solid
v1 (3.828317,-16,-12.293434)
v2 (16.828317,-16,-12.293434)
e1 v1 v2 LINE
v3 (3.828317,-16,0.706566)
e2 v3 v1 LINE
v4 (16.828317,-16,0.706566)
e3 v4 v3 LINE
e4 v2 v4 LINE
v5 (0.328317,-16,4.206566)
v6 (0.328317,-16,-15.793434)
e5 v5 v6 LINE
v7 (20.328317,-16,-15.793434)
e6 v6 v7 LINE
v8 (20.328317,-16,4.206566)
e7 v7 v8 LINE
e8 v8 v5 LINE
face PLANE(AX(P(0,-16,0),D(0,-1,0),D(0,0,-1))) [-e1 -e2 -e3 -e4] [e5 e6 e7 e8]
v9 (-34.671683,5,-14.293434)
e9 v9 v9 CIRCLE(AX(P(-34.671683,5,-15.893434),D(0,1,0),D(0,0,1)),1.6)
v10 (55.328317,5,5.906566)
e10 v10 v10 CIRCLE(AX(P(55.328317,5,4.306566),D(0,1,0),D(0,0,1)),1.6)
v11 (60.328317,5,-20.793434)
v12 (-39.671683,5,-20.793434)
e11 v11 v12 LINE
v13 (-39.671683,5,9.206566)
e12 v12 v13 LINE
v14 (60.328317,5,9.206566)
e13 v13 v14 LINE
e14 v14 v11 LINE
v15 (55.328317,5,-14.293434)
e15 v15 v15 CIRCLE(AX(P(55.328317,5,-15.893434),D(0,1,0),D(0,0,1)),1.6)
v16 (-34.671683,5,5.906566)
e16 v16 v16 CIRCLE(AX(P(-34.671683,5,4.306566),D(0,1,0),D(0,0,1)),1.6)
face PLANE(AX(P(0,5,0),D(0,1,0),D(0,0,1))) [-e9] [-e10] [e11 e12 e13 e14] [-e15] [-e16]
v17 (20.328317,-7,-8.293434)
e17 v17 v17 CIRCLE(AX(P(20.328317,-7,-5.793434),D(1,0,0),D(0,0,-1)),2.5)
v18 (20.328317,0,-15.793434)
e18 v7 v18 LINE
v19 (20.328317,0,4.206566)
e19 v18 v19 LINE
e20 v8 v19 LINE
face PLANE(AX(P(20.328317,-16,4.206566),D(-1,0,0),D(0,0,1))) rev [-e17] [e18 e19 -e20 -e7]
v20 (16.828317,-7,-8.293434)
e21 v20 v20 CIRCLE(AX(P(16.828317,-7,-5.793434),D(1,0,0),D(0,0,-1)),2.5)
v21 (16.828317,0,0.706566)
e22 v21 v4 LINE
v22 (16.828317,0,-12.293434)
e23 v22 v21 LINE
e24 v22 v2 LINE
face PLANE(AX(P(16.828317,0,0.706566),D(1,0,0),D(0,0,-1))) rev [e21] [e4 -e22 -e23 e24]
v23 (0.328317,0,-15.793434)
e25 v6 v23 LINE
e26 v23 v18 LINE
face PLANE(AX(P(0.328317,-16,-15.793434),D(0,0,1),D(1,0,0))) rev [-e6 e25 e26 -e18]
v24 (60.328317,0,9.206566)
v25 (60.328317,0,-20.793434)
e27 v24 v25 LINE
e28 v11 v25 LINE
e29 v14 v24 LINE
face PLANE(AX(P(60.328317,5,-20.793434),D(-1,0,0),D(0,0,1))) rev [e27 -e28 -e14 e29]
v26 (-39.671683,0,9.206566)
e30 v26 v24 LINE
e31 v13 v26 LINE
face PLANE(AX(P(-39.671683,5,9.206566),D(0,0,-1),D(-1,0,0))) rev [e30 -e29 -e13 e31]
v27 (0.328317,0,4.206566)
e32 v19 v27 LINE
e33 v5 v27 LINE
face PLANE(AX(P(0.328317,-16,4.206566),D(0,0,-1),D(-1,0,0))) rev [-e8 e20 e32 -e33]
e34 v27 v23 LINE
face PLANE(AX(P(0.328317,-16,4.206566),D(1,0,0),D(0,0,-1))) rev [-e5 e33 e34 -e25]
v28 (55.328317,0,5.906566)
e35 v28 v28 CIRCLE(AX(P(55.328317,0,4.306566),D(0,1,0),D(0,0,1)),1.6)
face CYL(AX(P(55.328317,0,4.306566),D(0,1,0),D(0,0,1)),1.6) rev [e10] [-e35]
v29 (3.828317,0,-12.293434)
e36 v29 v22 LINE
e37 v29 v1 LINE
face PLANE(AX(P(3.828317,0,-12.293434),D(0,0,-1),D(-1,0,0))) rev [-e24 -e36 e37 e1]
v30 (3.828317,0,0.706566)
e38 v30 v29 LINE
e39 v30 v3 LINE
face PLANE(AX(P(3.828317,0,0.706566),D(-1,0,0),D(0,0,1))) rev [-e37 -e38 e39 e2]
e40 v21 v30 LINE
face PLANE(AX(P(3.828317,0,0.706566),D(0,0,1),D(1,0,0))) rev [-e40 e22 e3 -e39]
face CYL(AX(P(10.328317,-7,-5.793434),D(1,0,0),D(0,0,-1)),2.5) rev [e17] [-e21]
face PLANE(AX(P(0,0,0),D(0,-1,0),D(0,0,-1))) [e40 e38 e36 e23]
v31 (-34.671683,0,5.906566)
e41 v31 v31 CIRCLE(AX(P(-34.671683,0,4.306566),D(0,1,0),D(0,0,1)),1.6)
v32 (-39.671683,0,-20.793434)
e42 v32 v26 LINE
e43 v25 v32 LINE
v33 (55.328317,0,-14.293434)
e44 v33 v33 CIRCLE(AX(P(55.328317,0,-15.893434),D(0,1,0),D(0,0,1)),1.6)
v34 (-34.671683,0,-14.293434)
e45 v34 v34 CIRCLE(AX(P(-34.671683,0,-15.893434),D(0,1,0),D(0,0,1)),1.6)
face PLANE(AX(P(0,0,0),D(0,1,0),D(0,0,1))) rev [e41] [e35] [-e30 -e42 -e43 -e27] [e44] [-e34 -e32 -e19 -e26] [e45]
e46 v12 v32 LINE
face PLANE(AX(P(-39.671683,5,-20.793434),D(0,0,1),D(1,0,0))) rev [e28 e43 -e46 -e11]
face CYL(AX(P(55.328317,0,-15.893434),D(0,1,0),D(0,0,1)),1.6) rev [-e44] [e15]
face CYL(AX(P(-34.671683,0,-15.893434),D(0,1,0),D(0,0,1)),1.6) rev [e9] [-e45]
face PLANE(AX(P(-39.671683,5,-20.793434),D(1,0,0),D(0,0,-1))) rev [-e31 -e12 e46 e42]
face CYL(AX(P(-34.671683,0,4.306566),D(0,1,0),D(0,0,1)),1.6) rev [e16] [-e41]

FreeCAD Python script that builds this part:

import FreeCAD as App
import Part
import Sketcher
from FreeCAD import Vector

doc = App.newDocument("Part")
body = doc.addObject("PartDesign::Body", "Body")

sketch1 = doc.addObject("Sketcher::SketchObject", "Sketch")
body.addObject(sketch1)
sketch1.AttachmentSupport = (doc.XZ_Plane, [""])
sketch1.MapMode = "FlatFace"
sketch1.addGeometry([
    Part.LineSegment(Vector(-40, -21, 0), Vector(-40, 9, 0)),
    Part.LineSegment(Vector(-40, 9, 0), Vector(60, 9, 0)),
    Part.LineSegment(Vector(60, 9, 0), Vector(60, -21, 0)),
    Part.LineSegment(Vector(60, -21, 0), Vector(-40, -21, 0)),
], False)
sketch1.addConstraint([
    Sketcher.Constraint("Coincident", 0, 2, 1, 1),
    Sketcher.Constraint("Coincident", 1, 2, 2, 1),
    Sketcher.Constraint("Coincident", 2, 2, 3, 1),
    Sketcher.Constraint("Coincident", 3, 2, 0, 1),
    Sketcher.Constraint("Vertical", 0),
    Sketcher.Constraint("Horizontal", 1),
    Sketcher.Constraint("Vertical", 2),
    Sketcher.Constraint("Horizontal", 3),
    Sketcher.Constraint("DistanceX", 1, 1, 1, 2, 100.0),
    Sketcher.Constraint("DistanceY", 0, 1, 0, 2, 30.0),
    Sketcher.Constraint("DistanceX", 0, 2, -1, 1, 39.671683),
    Sketcher.Constraint("DistanceY", -1, 1, 0, 2, 9.206566),
])
pad1 = doc.addObject("PartDesign::Pad", "Pad")
body.addObject(pad1)
pad1.Profile = sketch1
pad1.Length = 5
pad1.Reversed = True

sketch2 = doc.addObject("Sketcher::SketchObject", "Sketch001")
body.addObject(sketch2)
sketch2.AttachmentSupport = (doc.XZ_Plane, [""])
sketch2.MapMode = "FlatFace"
sketch2.AttachmentOffset = App.Placement(Vector(0, 0, -5), App.Rotation())
sketch2.addGeometry([
    Part.Circle(Vector(-34.7, -15.9, 0), Vector(0, 0, 1), 1.6),
    Part.Circle(Vector(-34.7, 4.3, 0), Vector(0, 0, 1), 1.6),
    Part.Circle(Vector(55.3, -15.9, 0), Vector(0, 0, 1), 1.6),
    Part.Circle(Vector(55.3, 4.3, 0), Vector(0, 0, 1), 1.6),
], False)
sketch2.addConstraint([
    Sketcher.Constraint("Equal", 0, 1),
    Sketcher.Constraint("Equal", 1, 2),
    Sketcher.Constraint("Equal", 2, 3),
    Sketcher.Constraint("Horizontal", 0, 3, 2, 3),
    Sketcher.Constraint("Horizontal", 1, 3, 3, 3),
    Sketcher.Constraint("Vertical", 0, 3, 1, 3),
    Sketcher.Constraint("Vertical", 2, 3, 3, 3),
    Sketcher.Constraint("Diameter", 0, 3.2),
    Sketcher.Constraint("DistanceX", 0, 3, 2, 3, 90.0),
    Sketcher.Constraint("DistanceY", 0, 3, 1, 3, 20.2),
    Sketcher.Constraint("DistanceX", 0, 3, -1, 1, 34.671683),
    Sketcher.Constraint("DistanceY", 0, 3, -1, 1, 15.893434),
])
pocket1 = doc.addObject("PartDesign::Pocket", "Pocket")
body.addObject(pocket1)
pocket1.Profile = sketch2
pocket1.Length = 5
pocket1.Reversed = True

sketch3 = doc.addObject("Sketcher::SketchObject", "Sketch002")
body.addObject(sketch3)
sketch3.AttachmentSupport = (doc.XZ_Plane, [""])
sketch3.MapMode = "FlatFace"
sketch3.addGeometry([
    Part.LineSegment(Vector(0, 4, 0), Vector(0, -16, 0)),
    Part.LineSegment(Vector(0, -16, 0), Vector(20, -16, 0)),
    Part.LineSegment(Vector(20, -16, 0), Vector(20, 4, 0)),
    Part.LineSegment(Vector(20, 4, 0), Vector(0, 4, 0)),
], False)
sketch3.addConstraint([
    Sketcher.Constraint("Coincident", 0, 2, 1, 1),
    Sketcher.Constraint("Coincident", 1, 2, 2, 1),
    Sketcher.Constraint("Coincident", 2, 2, 3, 1),
    Sketcher.Constraint("Coincident", 3, 2, 0, 1),
    Sketcher.Constraint("Vertical", 0),
    Sketcher.Constraint("Horizontal", 1),
    Sketcher.Constraint("Vertical", 2),
    Sketcher.Constraint("Horizontal", 3),
    Sketcher.Constraint("Equal", 3, 0),
    Sketcher.Constraint("DistanceX", 1, 1, 1, 2, 20.0),
    Sketcher.Constraint("DistanceX", -1, 1, 0, 2, 0.328317),
    Sketcher.Constraint("DistanceY", 0, 2, -1, 1, 15.793434),
])
pad2 = doc.addObject("PartDesign::Pad", "Pad001")
body.addObject(pad2)
pad2.Profile = sketch3
pad2.Length = 16

sketch4 = doc.addObject("Sketcher::SketchObject", "Sketch003")
body.addObject(sketch4)
sketch4.AttachmentSupport = (doc.XZ_Plane, [""])
sketch4.MapMode = "FlatFace"
sketch4.AttachmentOffset = App.Placement(Vector(0, 0, 16), App.Rotation())
sketch4.addGeometry([
    Part.LineSegment(Vector(4, 1, 0), Vector(4, -12, 0)),
    Part.LineSegment(Vector(4, -12, 0), Vector(17, -12, 0)),
    Part.LineSegment(Vector(17, -12, 0), Vector(17, 1, 0)),
    Part.LineSegment(Vector(17, 1, 0), Vector(4, 1, 0)),
], False)
sketch4.addConstraint([
    Sketcher.Constraint("Coincident", 0, 2, 1, 1),
    Sketcher.Constraint("Coincident", 1, 2, 2, 1),
    Sketcher.Constraint("Coincident", 2, 2, 3, 1),
    Sketcher.Constraint("Coincident", 3, 2, 0, 1),
    Sketcher.Constraint("Vertical", 0),
    Sketcher.Constraint("Horizontal", 1),
    Sketcher.Constraint("Vertical", 2),
    Sketcher.Constraint("Horizontal", 3),
    Sketcher.Constraint("Equal", 3, 0),
    Sketcher.Constraint("DistanceX", 1, 1, 1, 2, 13.0),
    Sketcher.Constraint("DistanceX", -1, 1, 0, 2, 3.828317),
    Sketcher.Constraint("DistanceY", 0, 2, -1, 1, 12.293434),
])
pocket2 = doc.addObject("PartDesign::Pocket", "Pocket001")
body.addObject(pocket2)
pocket2.Profile = sketch4
pocket2.Length = 16

sketch5 = doc.addObject("Sketcher::SketchObject", "Sketch004")
body.addObject(sketch5)
sketch5.AttachmentSupport = (doc.YZ_Plane, [""])
sketch5.MapMode = "FlatFace"
sketch5.AttachmentOffset = App.Placement(Vector(0, 0, 20.328317), App.Rotation())
sketch5.addGeometry(Part.Circle(Vector(-7, -5.8, 0), Vector(0, 0, 1), 2.5), False)
sketch5.addConstraint([
    Sketcher.Constraint("Diameter", 0, 5.0),
    Sketcher.Constraint("DistanceX", 0, 3, -1, 1, 7.0),
    Sketcher.Constraint("DistanceY", 0, 3, -1, 1, 5.793434),
])
pocket3 = doc.addObject("PartDesign::Pocket", "Pocket002")
body.addObject(pocket3)
pocket3.Profile = sketch5
pocket3.Length = 10

doc.recompute()
